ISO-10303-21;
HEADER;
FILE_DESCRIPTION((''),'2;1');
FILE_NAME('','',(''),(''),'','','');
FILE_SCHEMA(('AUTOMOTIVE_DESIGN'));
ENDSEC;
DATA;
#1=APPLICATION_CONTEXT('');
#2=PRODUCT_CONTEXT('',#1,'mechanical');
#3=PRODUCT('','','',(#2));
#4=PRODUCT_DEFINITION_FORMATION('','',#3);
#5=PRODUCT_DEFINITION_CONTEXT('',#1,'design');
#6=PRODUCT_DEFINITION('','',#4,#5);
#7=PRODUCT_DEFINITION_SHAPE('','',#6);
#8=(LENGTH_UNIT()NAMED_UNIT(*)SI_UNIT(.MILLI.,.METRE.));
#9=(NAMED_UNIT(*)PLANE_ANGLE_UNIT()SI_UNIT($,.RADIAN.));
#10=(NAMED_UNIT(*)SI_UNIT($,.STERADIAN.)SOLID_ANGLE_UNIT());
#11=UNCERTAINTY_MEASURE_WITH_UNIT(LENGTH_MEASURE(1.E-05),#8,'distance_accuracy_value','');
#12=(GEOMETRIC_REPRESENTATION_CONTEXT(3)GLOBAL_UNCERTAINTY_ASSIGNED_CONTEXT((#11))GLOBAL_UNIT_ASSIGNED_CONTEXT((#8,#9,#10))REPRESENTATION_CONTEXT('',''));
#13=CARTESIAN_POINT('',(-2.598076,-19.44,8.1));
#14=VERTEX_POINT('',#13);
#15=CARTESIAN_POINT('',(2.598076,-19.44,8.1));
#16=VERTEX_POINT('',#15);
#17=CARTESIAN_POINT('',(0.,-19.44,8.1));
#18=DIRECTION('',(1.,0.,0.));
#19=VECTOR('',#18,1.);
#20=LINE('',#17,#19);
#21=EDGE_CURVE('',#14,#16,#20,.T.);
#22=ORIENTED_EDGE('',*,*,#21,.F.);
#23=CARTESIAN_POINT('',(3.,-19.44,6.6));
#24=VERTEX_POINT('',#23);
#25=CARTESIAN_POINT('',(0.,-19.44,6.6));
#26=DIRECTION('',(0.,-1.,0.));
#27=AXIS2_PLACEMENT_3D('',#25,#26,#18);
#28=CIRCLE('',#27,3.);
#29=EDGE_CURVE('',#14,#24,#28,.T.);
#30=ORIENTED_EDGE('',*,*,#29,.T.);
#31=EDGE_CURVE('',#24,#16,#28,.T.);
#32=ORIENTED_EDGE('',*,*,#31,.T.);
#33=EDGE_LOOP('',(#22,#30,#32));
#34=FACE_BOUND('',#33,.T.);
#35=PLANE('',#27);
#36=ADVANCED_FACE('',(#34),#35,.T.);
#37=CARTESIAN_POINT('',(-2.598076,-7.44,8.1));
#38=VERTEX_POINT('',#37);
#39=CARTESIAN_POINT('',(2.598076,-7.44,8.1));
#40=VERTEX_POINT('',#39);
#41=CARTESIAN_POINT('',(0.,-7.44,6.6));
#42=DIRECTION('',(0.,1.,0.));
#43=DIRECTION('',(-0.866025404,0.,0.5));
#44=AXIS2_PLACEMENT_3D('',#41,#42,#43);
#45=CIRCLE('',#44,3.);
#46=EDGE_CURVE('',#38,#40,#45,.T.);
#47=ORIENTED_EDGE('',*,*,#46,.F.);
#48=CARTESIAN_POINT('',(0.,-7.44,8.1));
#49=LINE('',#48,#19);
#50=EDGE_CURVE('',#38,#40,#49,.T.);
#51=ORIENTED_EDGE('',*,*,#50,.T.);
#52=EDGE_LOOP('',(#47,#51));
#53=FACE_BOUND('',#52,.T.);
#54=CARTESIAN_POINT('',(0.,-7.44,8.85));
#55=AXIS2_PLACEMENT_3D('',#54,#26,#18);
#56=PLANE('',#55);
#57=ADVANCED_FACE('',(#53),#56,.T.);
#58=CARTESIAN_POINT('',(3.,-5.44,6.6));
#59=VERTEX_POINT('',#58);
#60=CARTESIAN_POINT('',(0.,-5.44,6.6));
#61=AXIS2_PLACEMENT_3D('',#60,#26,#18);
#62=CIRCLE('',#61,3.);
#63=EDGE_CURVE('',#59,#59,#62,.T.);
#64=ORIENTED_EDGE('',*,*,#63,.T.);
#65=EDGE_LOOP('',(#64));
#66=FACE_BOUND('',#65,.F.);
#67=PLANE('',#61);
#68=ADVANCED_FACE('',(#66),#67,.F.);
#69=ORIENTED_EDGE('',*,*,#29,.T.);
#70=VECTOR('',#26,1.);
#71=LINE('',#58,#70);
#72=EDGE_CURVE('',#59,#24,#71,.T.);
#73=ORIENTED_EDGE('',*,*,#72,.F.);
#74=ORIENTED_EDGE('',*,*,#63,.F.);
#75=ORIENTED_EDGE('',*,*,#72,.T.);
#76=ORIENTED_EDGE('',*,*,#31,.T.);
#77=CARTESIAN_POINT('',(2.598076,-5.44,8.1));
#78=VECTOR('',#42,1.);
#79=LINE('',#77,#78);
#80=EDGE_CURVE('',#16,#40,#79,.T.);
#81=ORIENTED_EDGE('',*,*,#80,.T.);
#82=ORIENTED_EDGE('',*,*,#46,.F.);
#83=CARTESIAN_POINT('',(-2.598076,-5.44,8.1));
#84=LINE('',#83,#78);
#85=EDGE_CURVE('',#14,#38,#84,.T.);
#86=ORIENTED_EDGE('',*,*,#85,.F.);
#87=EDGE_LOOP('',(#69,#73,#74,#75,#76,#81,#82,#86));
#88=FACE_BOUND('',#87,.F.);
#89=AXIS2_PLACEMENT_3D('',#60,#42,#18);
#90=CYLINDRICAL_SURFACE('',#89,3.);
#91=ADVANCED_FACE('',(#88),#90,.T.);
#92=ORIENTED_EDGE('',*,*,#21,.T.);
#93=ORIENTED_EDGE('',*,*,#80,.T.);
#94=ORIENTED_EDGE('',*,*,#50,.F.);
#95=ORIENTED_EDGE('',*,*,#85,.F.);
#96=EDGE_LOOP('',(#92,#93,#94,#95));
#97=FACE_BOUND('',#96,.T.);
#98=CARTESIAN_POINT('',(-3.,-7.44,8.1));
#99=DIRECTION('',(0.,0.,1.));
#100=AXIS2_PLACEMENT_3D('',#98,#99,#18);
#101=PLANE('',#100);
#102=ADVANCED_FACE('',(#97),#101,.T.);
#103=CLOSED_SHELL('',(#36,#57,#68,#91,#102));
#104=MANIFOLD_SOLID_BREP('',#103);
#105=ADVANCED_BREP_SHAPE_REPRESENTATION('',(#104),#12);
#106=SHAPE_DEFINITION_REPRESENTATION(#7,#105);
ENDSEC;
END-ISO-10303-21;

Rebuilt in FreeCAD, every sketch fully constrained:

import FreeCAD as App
import Part
import Sketcher
from FreeCAD import Vector
Q = App.Units.Quantity

doc = App.newDocument("Part")
params = doc.addObject("Spreadsheet::Sheet", "Params")
for row, (alias, value) in enumerate([
    ("sketch1_width", "6 mm"),
    ("sketch1_height", "1.5 mm"),
    ("pad1_length", "12 mm"),
    ("sketch2_diameter", "6 mm"),
    ("pad2_length", "14 mm"),
], start=1):
    params.set(f"A{row}", alias)
    params.set(f"B{row}", "=" + value)
    params.setAlias(f"B{row}", alias)

body = doc.addObject("PartDesign::Body", "Body")

# Sketch on XZ plane
sketch1 = body.newObject("Sketcher::SketchObject", "Sketch")
sketch1.AttachmentSupport = (doc.getObject("XZ_Plane"), [""])
sketch1.MapMode = "FlatFace"
sketch1.AttachmentOffset = App.Placement(Vector(0, 0, 7.44), App.Rotation())
sketch1.addGeometry([
    Part.LineSegment(Vector(-3, 9.6, 0), Vector(-3, 8.1, 0)),
    Part.LineSegment(Vector(-3, 8.1, 0), Vector(3, 8.1, 0)),
    Part.LineSegment(Vector(3, 8.1, 0), Vector(3, 9.6, 0)),
    Part.LineSegment(Vector(3, 9.6, 0), Vector(-3, 9.6, 0)),
], False)
sketch1.addConstraint([
    Sketcher.Constraint("Coincident", 0, 2, 1, 1),
    Sketcher.Constraint("Coincident", 1, 2, 2, 1),
    Sketcher.Constraint("Coincident", 2, 2, 3, 1),
    Sketcher.Constraint("Coincident", 3, 2, 0, 1),
    Sketcher.Constraint("Vertical", 0),
    Sketcher.Constraint("Horizontal", 1),
    Sketcher.Constraint("Vertical", 2),
    Sketcher.Constraint("Horizontal", 3),
    Sketcher.Constraint("DistanceX", 1, 1, 1, 2, Q("6 mm")),
    Sketcher.Constraint("DistanceY", 0, 2, 0, 1, Q("1.5 mm")),
    Sketcher.Constraint("DistanceX", 0, 2, -1, 1, Q("3 mm")),
    Sketcher.Constraint("DistanceY", -1, 1, 0, 2, Q("8.1 mm")),
])
sketch1.setExpression("Constraints[8]", "Params.sketch1_width")
sketch1.setExpression("Constraints[9]", "Params.sketch1_height")
pad1 = body.newObject("PartDesign::Pad", "Pad")
pad1.Profile = sketch1
pad1.setExpression("Length", "Params.pad1_length")
body2 = doc.addObject("PartDesign::Body", "Body001")

# Sketch on XZ plane
sketch2 = body2.newObject("Sketcher::SketchObject", "Sketch001")
sketch2.AttachmentSupport = (doc.getObject("XZ_Plane001"), [""])
sketch2.MapMode = "FlatFace"
sketch2.AttachmentOffset = App.Placement(Vector(0, 0, 5.44), App.Rotation())
sketch2.addGeometry(Part.Circle(Vector(0, 6.6, 0), Vector(0, 0, 1), 3), False)
sketch2.addConstraint([
    Sketcher.Constraint("PointOnObject", 0, 3, -2),
    Sketcher.Constraint("Diameter", 0, Q("6 mm")),
    Sketcher.Constraint("DistanceY", -1, 1, 0, 3, Q("6.6 mm")),
])
sketch2.setExpression("Constraints[1]", "Params.sketch2_diameter")
pad2 = body2.newObject("PartDesign::Pad", "Pad001")
pad2.Profile = sketch2
pad2.setExpression("Length", "Params.pad2_length")
doc.recompute()

boolean = body2.newObject("PartDesign::Boolean", "Boolean")
boolean.Type = "Cut"
boolean.addObjects([body])

doc.recompute()
